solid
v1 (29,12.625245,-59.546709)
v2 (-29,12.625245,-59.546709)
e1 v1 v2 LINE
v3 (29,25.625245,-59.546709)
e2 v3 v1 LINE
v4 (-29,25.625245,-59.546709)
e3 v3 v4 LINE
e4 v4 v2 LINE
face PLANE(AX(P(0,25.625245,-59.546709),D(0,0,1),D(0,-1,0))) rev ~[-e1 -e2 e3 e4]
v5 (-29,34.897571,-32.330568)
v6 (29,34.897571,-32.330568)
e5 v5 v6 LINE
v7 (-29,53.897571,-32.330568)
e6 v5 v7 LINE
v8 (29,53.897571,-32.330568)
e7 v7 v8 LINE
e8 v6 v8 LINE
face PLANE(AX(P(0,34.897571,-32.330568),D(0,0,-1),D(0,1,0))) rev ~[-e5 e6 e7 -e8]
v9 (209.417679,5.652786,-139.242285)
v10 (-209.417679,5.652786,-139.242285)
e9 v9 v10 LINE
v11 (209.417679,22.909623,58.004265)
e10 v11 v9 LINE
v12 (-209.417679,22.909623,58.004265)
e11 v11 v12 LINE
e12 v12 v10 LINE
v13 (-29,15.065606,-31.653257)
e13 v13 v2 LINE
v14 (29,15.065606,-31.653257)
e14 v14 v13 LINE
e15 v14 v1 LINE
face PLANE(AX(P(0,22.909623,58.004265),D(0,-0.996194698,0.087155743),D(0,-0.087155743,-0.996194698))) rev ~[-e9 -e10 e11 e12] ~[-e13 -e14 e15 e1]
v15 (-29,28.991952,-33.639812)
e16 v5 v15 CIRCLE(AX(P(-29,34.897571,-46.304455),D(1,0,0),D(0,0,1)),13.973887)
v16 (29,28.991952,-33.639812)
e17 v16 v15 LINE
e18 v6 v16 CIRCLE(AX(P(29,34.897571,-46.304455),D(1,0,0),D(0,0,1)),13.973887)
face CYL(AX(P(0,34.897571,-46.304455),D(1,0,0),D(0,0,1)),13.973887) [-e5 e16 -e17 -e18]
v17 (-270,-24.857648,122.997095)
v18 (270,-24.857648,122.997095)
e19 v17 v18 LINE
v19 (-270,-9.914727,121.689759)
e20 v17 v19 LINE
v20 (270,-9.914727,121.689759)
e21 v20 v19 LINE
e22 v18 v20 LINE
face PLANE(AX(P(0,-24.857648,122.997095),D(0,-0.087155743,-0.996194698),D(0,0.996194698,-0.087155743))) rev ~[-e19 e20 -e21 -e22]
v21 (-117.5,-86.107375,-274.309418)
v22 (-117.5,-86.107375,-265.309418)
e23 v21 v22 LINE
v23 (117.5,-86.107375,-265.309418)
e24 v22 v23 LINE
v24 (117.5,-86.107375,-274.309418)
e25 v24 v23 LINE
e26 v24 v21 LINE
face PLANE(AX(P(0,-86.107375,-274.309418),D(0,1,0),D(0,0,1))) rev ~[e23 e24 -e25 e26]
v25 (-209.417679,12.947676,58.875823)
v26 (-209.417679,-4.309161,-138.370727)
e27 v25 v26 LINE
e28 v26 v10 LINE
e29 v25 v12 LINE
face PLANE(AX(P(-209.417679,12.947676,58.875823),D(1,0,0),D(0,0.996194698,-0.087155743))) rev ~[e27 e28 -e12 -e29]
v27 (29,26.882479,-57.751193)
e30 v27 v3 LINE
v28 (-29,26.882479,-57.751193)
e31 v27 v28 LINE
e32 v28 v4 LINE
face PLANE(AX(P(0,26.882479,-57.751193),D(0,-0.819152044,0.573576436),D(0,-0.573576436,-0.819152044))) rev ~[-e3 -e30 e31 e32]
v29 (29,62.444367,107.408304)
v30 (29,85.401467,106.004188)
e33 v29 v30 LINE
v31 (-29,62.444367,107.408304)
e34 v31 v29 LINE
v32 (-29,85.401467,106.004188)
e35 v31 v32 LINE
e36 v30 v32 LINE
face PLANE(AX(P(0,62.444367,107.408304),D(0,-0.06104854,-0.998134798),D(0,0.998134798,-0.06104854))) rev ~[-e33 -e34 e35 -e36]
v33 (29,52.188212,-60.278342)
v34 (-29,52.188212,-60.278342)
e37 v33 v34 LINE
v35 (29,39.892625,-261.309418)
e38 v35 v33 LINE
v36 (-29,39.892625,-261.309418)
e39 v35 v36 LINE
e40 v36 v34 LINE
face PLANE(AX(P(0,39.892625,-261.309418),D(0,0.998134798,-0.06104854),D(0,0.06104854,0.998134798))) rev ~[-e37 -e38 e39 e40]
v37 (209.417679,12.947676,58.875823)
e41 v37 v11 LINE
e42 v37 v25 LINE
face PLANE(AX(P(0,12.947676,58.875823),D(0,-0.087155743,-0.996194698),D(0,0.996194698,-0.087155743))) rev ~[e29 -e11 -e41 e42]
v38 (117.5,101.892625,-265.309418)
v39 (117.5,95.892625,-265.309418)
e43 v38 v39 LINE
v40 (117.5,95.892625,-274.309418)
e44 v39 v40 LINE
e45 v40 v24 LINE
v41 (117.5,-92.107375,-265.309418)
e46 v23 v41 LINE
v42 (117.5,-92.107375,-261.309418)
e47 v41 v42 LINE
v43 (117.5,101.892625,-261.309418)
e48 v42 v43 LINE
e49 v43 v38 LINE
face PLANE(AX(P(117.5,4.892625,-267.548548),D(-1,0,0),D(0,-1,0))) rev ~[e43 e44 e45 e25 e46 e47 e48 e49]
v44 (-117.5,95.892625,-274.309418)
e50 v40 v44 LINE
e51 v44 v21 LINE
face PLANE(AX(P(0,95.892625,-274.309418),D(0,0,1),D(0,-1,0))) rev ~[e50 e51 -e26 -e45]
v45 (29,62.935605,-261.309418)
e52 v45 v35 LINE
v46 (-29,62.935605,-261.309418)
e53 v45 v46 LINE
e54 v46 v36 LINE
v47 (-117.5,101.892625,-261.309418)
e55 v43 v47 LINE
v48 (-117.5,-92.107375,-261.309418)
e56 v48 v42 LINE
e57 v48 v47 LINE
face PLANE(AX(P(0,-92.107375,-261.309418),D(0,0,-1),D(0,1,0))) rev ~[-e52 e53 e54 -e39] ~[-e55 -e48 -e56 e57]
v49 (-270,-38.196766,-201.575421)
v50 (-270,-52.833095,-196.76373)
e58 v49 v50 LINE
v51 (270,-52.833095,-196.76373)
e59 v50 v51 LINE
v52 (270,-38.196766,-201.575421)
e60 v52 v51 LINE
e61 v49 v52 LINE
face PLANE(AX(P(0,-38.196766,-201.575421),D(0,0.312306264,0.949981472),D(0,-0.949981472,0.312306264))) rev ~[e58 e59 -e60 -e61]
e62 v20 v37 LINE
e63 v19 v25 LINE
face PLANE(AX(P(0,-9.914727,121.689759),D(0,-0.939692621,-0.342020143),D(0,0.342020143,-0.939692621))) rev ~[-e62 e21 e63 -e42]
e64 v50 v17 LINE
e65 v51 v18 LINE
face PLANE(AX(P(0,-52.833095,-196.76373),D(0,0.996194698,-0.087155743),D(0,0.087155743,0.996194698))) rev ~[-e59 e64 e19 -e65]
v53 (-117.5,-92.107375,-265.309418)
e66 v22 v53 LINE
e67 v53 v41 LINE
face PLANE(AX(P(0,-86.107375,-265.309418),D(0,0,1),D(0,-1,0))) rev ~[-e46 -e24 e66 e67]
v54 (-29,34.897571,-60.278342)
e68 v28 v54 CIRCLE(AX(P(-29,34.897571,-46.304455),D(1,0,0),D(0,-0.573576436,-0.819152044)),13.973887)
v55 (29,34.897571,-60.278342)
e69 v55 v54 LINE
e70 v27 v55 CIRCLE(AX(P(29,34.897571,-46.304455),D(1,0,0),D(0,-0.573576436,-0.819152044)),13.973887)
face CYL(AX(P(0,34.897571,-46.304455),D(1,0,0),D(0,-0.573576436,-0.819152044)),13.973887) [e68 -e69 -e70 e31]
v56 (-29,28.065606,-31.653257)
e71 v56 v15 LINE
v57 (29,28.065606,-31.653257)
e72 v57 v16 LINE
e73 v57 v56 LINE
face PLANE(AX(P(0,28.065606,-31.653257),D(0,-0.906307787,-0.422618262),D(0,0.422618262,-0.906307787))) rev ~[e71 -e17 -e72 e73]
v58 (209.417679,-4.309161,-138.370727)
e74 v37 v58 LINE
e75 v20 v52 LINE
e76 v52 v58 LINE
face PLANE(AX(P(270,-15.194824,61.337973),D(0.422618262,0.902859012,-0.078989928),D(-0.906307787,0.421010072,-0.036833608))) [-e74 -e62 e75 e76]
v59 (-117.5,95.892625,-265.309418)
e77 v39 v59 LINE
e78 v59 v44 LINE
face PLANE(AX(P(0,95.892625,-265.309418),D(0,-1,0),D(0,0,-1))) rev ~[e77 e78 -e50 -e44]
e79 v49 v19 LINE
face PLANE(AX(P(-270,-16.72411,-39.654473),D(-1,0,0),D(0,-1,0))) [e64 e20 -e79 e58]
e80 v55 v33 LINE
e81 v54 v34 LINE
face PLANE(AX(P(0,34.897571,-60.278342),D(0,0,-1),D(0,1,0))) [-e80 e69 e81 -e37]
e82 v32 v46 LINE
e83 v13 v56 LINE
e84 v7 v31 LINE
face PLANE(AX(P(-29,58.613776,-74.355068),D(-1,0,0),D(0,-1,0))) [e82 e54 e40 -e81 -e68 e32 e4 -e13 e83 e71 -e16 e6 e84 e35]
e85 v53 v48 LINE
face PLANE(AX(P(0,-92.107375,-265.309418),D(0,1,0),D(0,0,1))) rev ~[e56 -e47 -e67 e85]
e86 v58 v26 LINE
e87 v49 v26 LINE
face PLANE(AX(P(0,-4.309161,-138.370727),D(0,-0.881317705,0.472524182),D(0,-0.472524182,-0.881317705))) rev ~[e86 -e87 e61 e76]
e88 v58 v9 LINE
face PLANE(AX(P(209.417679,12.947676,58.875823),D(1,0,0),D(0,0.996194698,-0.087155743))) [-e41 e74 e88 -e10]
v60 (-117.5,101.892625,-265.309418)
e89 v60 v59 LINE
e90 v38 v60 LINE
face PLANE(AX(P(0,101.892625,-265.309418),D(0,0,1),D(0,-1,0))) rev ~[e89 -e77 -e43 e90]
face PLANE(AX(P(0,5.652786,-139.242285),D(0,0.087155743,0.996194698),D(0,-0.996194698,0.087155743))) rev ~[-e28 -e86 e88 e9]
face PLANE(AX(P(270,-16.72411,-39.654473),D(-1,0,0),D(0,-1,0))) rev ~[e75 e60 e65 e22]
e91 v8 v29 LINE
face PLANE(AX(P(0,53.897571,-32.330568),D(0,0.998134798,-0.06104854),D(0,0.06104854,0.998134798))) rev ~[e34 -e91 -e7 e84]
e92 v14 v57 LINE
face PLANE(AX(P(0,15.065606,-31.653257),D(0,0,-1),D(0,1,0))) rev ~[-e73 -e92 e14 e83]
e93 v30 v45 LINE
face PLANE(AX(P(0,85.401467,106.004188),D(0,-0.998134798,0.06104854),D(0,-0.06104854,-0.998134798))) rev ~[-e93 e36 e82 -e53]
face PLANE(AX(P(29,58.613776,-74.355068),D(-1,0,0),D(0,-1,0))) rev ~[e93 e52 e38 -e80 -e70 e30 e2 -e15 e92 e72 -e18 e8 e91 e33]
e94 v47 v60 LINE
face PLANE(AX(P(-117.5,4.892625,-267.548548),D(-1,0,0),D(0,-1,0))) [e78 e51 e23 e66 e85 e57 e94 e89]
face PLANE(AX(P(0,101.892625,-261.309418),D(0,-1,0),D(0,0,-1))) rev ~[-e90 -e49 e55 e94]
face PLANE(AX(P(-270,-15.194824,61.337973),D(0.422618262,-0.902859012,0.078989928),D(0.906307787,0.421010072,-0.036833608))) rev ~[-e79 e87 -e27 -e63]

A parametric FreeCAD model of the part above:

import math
import FreeCAD as App
import Part
import Sketcher

V = App.Vector
Q = App.Units.Quantity

doc = App.newDocument("Part")
body = doc.addObject("PartDesign::Body", "Body")

sketch1 = body.newObject("Sketcher::SketchObject", "Sketch")
sketch1.AttachmentSupport = (doc.getObject("YZ_Plane"), [""])
sketch1.MapMode = "FlatFace"
sketch1.addGeometry(Part.LineSegment(V(-10, 122, 0), V(-25, 123, 0)), False)
sketch1.addGeometry(Part.LineSegment(V(-25, 123, 0), V(-53, -197, 0)), False)
sketch1.addGeometry(Part.LineSegment(V(-53, -197, 0), V(-38, -202, 0)), False)
sketch1.addGeometry(Part.LineSegment(V(-38, -202, 0), V(-4, -138, 0)), False)
sketch1.addGeometry(Part.LineSegment(V(-4, -138, 0), V(6, -139, 0)), False)
sketch1.addGeometry(Part.LineSegment(V(6, -139, 0), V(23, 58, 0)), False)
sketch1.addGeometry(Part.LineSegment(V(23, 58, 0), V(13, 59, 0)), False)
sketch1.addGeometry(Part.LineSegment(V(13, 59, 0), V(-10, 122, 0)), False)
sketch1.addConstraint(Sketcher.Constraint("Coincident", 0, 2, 1, 1))
sketch1.addConstraint(Sketcher.Constraint("Coincident", 1, 2, 2, 1))
sketch1.addConstraint(Sketcher.Constraint("Coincident", 2, 2, 3, 1))
sketch1.addConstraint(Sketcher.Constraint("Coincident", 3, 2, 4, 1))
sketch1.addConstraint(Sketcher.Constraint("Coincident", 4, 2, 5, 1))
sketch1.addConstraint(Sketcher.Constraint("Coincident", 5, 2, 6, 1))
sketch1.addConstraint(Sketcher.Constraint("Coincident", 6, 2, 7, 1))
sketch1.addConstraint(Sketcher.Constraint("Coincident", 7, 2, 0, 1))
sketch1.addConstraint(Sketcher.Constraint("Perpendicular", 0, 1))
sketch1.addConstraint(Sketcher.Constraint("Perpendicular", 1, 4))
sketch1.addConstraint(Sketcher.Constraint("Perpendicular", 4, 5))
sketch1.addConstraint(Sketcher.Constraint("Perpendicular", 5, 6))
sketch1.addConstraint(Sketcher.Constraint("Equal", 4, 6))
sketch1.addConstraint(Sketcher.Constraint("Angle", 0, Q("175 deg")))
sketch1.addConstraint(Sketcher.Constraint("Angle", 7, Q("110 deg")))
sketch1.addConstraint(Sketcher.Constraint("Distance", 0, Q("15 mm")))
sketch1.addConstraint(Sketcher.Constraint("Distance", 4, Q("10 mm")))
sketch1.addConstraint(Sketcher.Constraint("Distance", 5, Q("198 mm")))
sketch1.addConstraint(Sketcher.Constraint("Distance", 1, Q("320.982259 mm")))
sketch1.addConstraint(Sketcher.Constraint("DistanceY", 1, 2, -1, 1, Q("196.76373 mm")))
sketch1.addConstraint(Sketcher.Constraint("DistanceY", 2, 2, -1, 1, Q("201.575421 mm")))
sketch1.addConstraint(Sketcher.Constraint("DistanceX", 3, 2, -1, 1, Q("4.309161 mm")))
sketch1.addConstraint(Sketcher.Constraint("DistanceX", 1, 2, 2, 2, Q("14.636329 mm")))
sketch1.addConstraint(Sketcher.Constraint("DistanceX", 2, 2, 4, 2, Q("43.849552 mm")))
pad1 = body.newObject("PartDesign::Pad", "Pad")
pad1.Profile = sketch1
pad1.Length = 540
pad1.Midplane = True

sketch2 = body.newObject("Sketcher::SketchObject", "Sketch001")
sketch2.AttachmentSupport = (doc.getObject("YZ_Plane"), [""])
sketch2.MapMode = "FlatFace"
sketch2.addGeometry(Part.LineSegment(V(85.4, 106, 0), V(62.4, 107.4, 0)), False)
sketch2.addGeometry(Part.LineSegment(V(62.4, 107.4, 0), V(53.9, -32.3, 0)), False)
sketch2.addGeometry(Part.LineSegment(V(53.9, -32.3, 0), V(34.9, -32.3, 0)), False)
sketch2.addGeometry(Part.ArcOfCircle(Part.Circle(V(34.9, -46.3, 0), V(0, 0, 1), 14), math.radians(90), math.radians(115)), False)
sketch2.addGeometry(Part.LineSegment(V(29, -33.6, 0), V(28.1, -31.7, 0)), False)
sketch2.addGeometry(Part.LineSegment(V(28.1, -31.7, 0), V(15.1, -31.7, 0)), False)
sketch2.addGeometry(Part.LineSegment(V(15.1, -31.7, 0), V(12.6, -59.5, 0)), False)
sketch2.addGeometry(Part.LineSegment(V(12.6, -59.5, 0), V(25.6, -59.5, 0)), False)
sketch2.addGeometry(Part.LineSegment(V(25.6, -59.5, 0), V(26.9, -57.8, 0)), False)
sketch2.addGeometry(Part.ArcOfCircle(Part.Circle(V(34.9, -46.3, 0), V(0, 0, 1), 14), math.radians(-125), math.radians(-90)), False)
sketch2.addGeometry(Part.LineSegment(V(34.9, -60.3, 0), V(52.2, -60.3, 0)), False)
sketch2.addGeometry(Part.LineSegment(V(52.2, -60.3, 0), V(39.9, -261.3, 0)), False)
sketch2.addGeometry(Part.LineSegment(V(39.9, -261.3, 0), V(62.9, -261.3, 0)), False)
sketch2.addGeometry(Part.LineSegment(V(62.9, -261.3, 0), V(85.4, 106, 0)), False)
sketch2.addConstraint(Sketcher.Constraint("Coincident", 0, 2, 1, 1))
sketch2.addConstraint(Sketcher.Constraint("Coincident", 1, 2, 2, 1))
sketch2.addConstraint(Sketcher.Constraint("Tangent", 2, 2, 3, 1))
sketch2.addConstraint(Sketcher.Constraint("Coincident", 3, 2, 4, 1))
sketch2.addConstraint(Sketcher.Constraint("Coincident", 4, 2, 5, 1))
sketch2.addConstraint(Sketcher.Constraint("Coincident", 5, 2, 6, 1))
sketch2.addConstraint(Sketcher.Constraint("Coincident", 6, 2, 7, 1))
sketch2.addConstraint(Sketcher.Constraint("Coincident", 7, 2, 8, 1))
sketch2.addConstraint(Sketcher.Constraint("Coincident", 8, 2, 9, 1))
sketch2.addConstraint(Sketcher.Constraint("Tangent", 9, 2, 10, 1))
sketch2.addConstraint(Sketcher.Constraint("Coincident", 10, 2, 11, 1))
sketch2.addConstraint(Sketcher.Constraint("Coincident", 11, 2, 12, 1))
sketch2.addConstraint(Sketcher.Constraint("Coincident", 12, 2, 13, 1))
sketch2.addConstraint(Sketcher.Constraint("Coincident", 13, 2, 0, 1))
sketch2.addConstraint(Sketcher.Constraint("Horizontal", 2))
sketch2.addConstraint(Sketcher.Constraint("Horizontal", 5))
sketch2.addConstraint(Sketcher.Constraint("Horizontal", 7))
sketch2.addConstraint(Sketcher.Constraint("Horizontal", 10))
sketch2.addConstraint(Sketcher.Constraint("Horizontal", 12))
sketch2.addConstraint(Sketcher.Constraint("Coincident", 9, 3, 3, 3))
sketch2.addConstraint(Sketcher.Constraint("Equal", 3, 9))
sketch2.addConstraint(Sketcher.Constraint("Perpendicular", 0, 1))
sketch2.addConstraint(Sketcher.Constraint("Parallel", 1, 11))
sketch2.addConstraint(Sketcher.Constraint("Parallel", 11, 13))
sketch2.addConstraint(Sketcher.Constraint("Equal", 5, 7))
sketch2.addConstraint(Sketcher.Constraint("Equal", 4, 8))
sketch2.addConstraint(Sketcher.Constraint("DistanceX", 2, 2, 2, 1, Q("19 mm")))
sketch2.addConstraint(Sketcher.Constraint("DistanceX", 5, 2, 5, 1, Q("13 mm")))
sketch2.addConstraint(Sketcher.Constraint("Angle", 4, Q("115 deg")))
sketch2.addConstraint(Sketcher.Constraint("Angle", 6, Q("-95 deg")))
sketch2.addConstraint(Sketcher.Constraint("Angle", 8, Q("55 deg")))
sketch2.addConstraint(Sketcher.Constraint("Distance", 0, Q("23 mm")))
sketch2.addConstraint(Sketcher.Constraint("Distance", 1, Q("140 mm")))
sketch2.addConstraint(Sketcher.Constraint("Distance", 6, Q("28 mm")))
sketch2.addConstraint(Sketcher.Constraint("Distance", 13, Q("368 mm")))
sketch2.addConstraint(Sketcher.Constraint("Angle", 0, Q("176.5 deg")))
sketch2.addConstraint(Sketcher.Constraint("Radius", 3, Q("13.973887 mm")))
sketch2.addConstraint(Sketcher.Constraint("DistanceY", 3, 2, 13, 2, Q("139.644 mm")))
sketch2.addConstraint(Sketcher.Constraint("DistanceX", 10, 1, 10, 2, Q("17.290641 mm")))
sketch2.addConstraint(Sketcher.Constraint("DistanceX", -1, 1, 3, 3, Q("34.897571 mm")))
sketch2.addConstraint(Sketcher.Constraint("DistanceY", 3, 2, -1, 1, Q("33.639812 mm")))
pad2 = body.newObject("PartDesign::Pad", "Pad001")
pad2.Profile = sketch2
pad2.Length = 58
pad2.Midplane = True

sketch3 = body.newObject("Sketcher::SketchObject", "Sketch002")
sketch3.AttachmentSupport = (doc.getObject("YZ_Plane"), [""])
sketch3.MapMode = "FlatFace"
sketch3.addGeometry(Part.LineSegment(V(101.9, -261.3, 0), V(-92.1, -261.3, 0)), False)
sketch3.addGeometry(Part.LineSegment(V(-92.1, -261.3, 0), V(-92.1, -265.3, 0)), False)
sketch3.addGeometry(Part.LineSegment(V(-92.1, -265.3, 0), V(-86.1, -265.3, 0)), False)
sketch3.addGeometry(Part.LineSegment(V(-86.1, -265.3, 0), V(-86.1, -274.3, 0)), False)
sketch3.addGeometry(Part.LineSegment(V(-86.1, -274.3, 0), V(95.9, -274.3, 0)), False)
sketch3.addGeometry(Part.LineSegment(V(95.9, -274.3, 0), V(95.9, -265.3, 0)), False)
sketch3.addGeometry(Part.LineSegment(V(95.9, -265.3, 0), V(101.9, -265.3, 0)), False)
sketch3.addGeometry(Part.LineSegment(V(101.9, -265.3, 0), V(101.9, -261.3, 0)), False)
sketch3.addConstraint(Sketcher.Constraint("Coincident", 0, 2, 1, 1))
sketch3.addConstraint(Sketcher.Constraint("Coincident", 1, 2, 2, 1))
sketch3.addConstraint(Sketcher.Constraint("Coincident", 2, 2, 3, 1))
sketch3.addConstraint(Sketcher.Constraint("Coincident", 3, 2, 4, 1))
sketch3.addConstraint(Sketcher.Constraint("Coincident", 4, 2, 5, 1))
sketch3.addConstraint(Sketcher.Constraint("Coincident", 5, 2, 6, 1))
sketch3.addConstraint(Sketcher.Constraint("Coincident", 6, 2, 7, 1))
sketch3.addConstraint(Sketcher.Constraint("Coincident", 7, 2, 0, 1))
sketch3.addConstraint(Sketcher.Constraint("Horizontal", 0))
sketch3.addConstraint(Sketcher.Constraint("Vertical", 1))
sketch3.addConstraint(Sketcher.Constraint("Horizontal", 2))
sketch3.addConstraint(Sketcher.Constraint("Vertical", 3))
sketch3.addConstraint(Sketcher.Constraint("Horizontal", 4))
sketch3.addConstraint(Sketcher.Constraint("Vertical", 5))
sketch3.addConstraint(Sketcher.Constraint("Horizontal", 6))
sketch3.addConstraint(Sketcher.Constraint("Vertical", 7))
sketch3.addConstraint(Sketcher.Constraint("Horizontal", 2, 2, 5, 2))
sketch3.addConstraint(Sketcher.Constraint("Equal", 2, 6))
sketch3.addConstraint(Sketcher.Constraint("DistanceX", 0, 2, 0, 1, Q("194 mm")))
sketch3.addConstraint(Sketcher.Constraint("DistanceX", 2, 1, 2, 2, Q("6 mm")))
sketch3.addConstraint(Sketcher.Constraint("DistanceY", 1, 2, 1, 1, Q("4 mm")))
sketch3.addConstraint(Sketcher.Constraint("DistanceY", 3, 2, 3, 1, Q("9 mm")))
sketch3.addConstraint(Sketcher.Constraint("DistanceY", 0, 2, -1, 1, Q("261.309418 mm")))
sketch3.addConstraint(Sketcher.Constraint("DistanceX", 0, 2, -1, 1, Q("92.107375 mm")))
pad3 = body.newObject("PartDesign::Pad", "Pad002")
pad3.Profile = sketch3
pad3.Length = 235
pad3.Midplane = True

sketch4 = body.newObject("Sketcher::SketchObject", "Sketch003")
sketch4.Placement = App.Placement(V(0, 5.210192, 59.552765), App.Rotation(V(0, -0.996194698, 0.087155743), V(1, 0, 0), V(0, 0.087155743, 0.996194698), "ZXY"))
sketch4.addGeometry(Part.LineSegment(V(-8, 209, 0), V(20, 270, 0)), False)
sketch4.addGeometry(Part.LineSegment(V(20, 270, 0), V(-18, 270, 0)), False)
sketch4.addGeometry(Part.LineSegment(V(-18, 270, 0), V(-18, 209, 0)), False)
sketch4.addGeometry(Part.LineSegment(V(-18, 209, 0), V(-8, 209, 0)), False)
sketch4.addGeometry(Part.LineSegment(V(20, -270, 0), V(-8, -209, 0)), False)
sketch4.addGeometry(Part.LineSegment(V(-8, -209, 0), V(-18, -209, 0)), False)
sketch4.addGeometry(Part.LineSegment(V(-18, -209, 0), V(-18, -270, 0)), False)
sketch4.addGeometry(Part.LineSegment(V(-18, -270, 0), V(20, -270, 0)), False)
sketch4.addConstraint(Sketcher.Constraint("Coincident", 0, 2, 1, 1))
sketch4.addConstraint(Sketcher.Constraint("Coincident", 1, 2, 2, 1))
sketch4.addConstraint(Sketcher.Constraint("Coincident", 2, 2, 3, 1))
sketch4.addConstraint(Sketcher.Constraint("Coincident", 3, 2, 0, 1))
sketch4.addConstraint(Sketcher.Constraint("Coincident", 4, 2, 5, 1))
sketch4.addConstraint(Sketcher.Constraint("Coincident", 5, 2, 6, 1))
sketch4.addConstraint(Sketcher.Constraint("Coincident", 6, 2, 7, 1))
sketch4.addConstraint(Sketcher.Constraint("Coincident", 7, 2, 4, 1))
sketch4.addConstraint(Sketcher.Constraint("Horizontal", 1))
sketch4.addConstraint(Sketcher.Constraint("Vertical", 2))
sketch4.addConstraint(Sketcher.Constraint("Horizontal", 3))
sketch4.addConstraint(Sketcher.Constraint("Horizontal", 5))
sketch4.addConstraint(Sketcher.Constraint("Vertical", 6))
sketch4.addConstraint(Sketcher.Constraint("Horizontal", 7))
sketch4.addConstraint(Sketcher.Constraint("Symmetric", 3, 2, 4, 2, -1))
sketch4.addConstraint(Sketcher.Constraint("Symmetric", 1, 2, 6, 2, -1))
sketch4.addConstraint(Sketcher.Constraint("Vertical", 0, 2, 7, 2))
sketch4.addConstraint(Sketcher.Constraint("DistanceX", 3, 1, 3, 2, Q("10 mm")))
sketch4.addConstraint(Sketcher.Constraint("Angle", 0, Q("65 deg")))
sketch4.addConstraint(Sketcher.Constraint("DistanceY", -1, 1, 0, 2, Q("270 mm")))
sketch4.addConstraint(Sketcher.Constraint("DistanceX", 1, 2, 1, 1, Q("38.25 mm")))
sketch4.addConstraint(Sketcher.Constraint("DistanceX", -1, 1, 0, 2, Q("20.48296 mm")))
pocket1 = body.newObject("PartDesign::Pocket", "Pocket")
pocket1.Profile = sketch4
pocket1.Type = "ThroughAll"
pocket1.Midplane = True

doc.recompute()
